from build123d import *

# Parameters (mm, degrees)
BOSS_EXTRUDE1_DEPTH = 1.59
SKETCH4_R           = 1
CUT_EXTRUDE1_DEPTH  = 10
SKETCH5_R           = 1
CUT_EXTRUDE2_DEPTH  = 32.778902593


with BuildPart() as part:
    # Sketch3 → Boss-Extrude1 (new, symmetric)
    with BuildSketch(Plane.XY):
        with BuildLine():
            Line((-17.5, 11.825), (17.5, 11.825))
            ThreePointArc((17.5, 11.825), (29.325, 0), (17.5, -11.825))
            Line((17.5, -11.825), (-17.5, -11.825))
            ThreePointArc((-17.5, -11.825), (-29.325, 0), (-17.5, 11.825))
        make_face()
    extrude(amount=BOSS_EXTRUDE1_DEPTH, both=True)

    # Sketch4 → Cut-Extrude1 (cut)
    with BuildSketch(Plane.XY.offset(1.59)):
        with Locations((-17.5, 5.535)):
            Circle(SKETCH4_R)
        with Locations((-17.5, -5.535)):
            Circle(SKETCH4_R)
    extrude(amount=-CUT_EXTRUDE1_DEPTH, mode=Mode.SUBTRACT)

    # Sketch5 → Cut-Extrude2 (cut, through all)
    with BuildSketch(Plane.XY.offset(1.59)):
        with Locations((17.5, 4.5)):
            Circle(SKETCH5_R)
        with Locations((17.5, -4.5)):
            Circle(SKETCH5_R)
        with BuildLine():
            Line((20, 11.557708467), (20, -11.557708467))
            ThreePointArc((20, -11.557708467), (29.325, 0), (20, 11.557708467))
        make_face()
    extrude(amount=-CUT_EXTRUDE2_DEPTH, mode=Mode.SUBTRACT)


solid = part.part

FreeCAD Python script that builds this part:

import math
import FreeCAD as App
import Part
import Sketcher
Q = App.Units.Quantity

doc = App.newDocument("Part")
body = doc.addObject("PartDesign::Body", "Body")

sketch1 = doc.addObject("Sketcher::SketchObject", "Sketch")
body.addObject(sketch1)
sketch1.AttachmentSupport = (doc.XY_Plane, [""])
sketch1.MapMode = "FlatFace"
sketch1.addGeometry([
    Part.LineSegment(App.Vector(17.5, 11.825, 0), App.Vector(-17.5, 11.825, 0)),
    Part.ArcOfCircle(Part.Circle(App.Vector(-17.5, 0, 0), App.Vector(0, 0, 1), 11.825), math.radians(90), math.radians(270)),
    Part.LineSegment(App.Vector(-17.5, -11.825, 0), App.Vector(17.5, -11.825, 0)),
    Part.ArcOfCircle(Part.Circle(App.Vector(17.5, 0, 0), App.Vector(0, 0, 1), 11.825), math.radians(-90), math.radians(90)),
], False)
sketch1.addConstraint([
    Sketcher.Constraint("Tangent", 0, 2, 1, 1),
    Sketcher.Constraint("Tangent", 1, 2, 2, 1),
    Sketcher.Constraint("Tangent", 2, 2, 3, 1),
    Sketcher.Constraint("Tangent", 3, 2, 0, 1),
    Sketcher.Constraint("Horizontal", 0),
    Sketcher.Constraint("Horizontal", 2),
    Sketcher.Constraint("Symmetric", 1, 3, 3, 3, -1, 1),
    Sketcher.Constraint("DistanceX", 0, 2, 0, 1, Q("35 mm")),
    Sketcher.Constraint("Radius", 1, Q("11.825 mm")),
])
pad1 = doc.addObject("PartDesign::Pad", "Pad")
body.addObject(pad1)
pad1.Profile = sketch1
pad1.Length = 3.18
pad1.Midplane = True

sketch2 = doc.addObject("Sketcher::SketchObject", "Sketch001")
body.addObject(sketch2)
sketch2.AttachmentSupport = (doc.XY_Plane, [""])
sketch2.MapMode = "FlatFace"
sketch2.AttachmentOffset = App.Placement(App.Vector(0, 0, 1.59), App.Rotation())
sketch2.addGeometry([
    Part.Circle(App.Vector(-17.5, 5.535, 0), App.Vector(0, 0, 1), 1),
    Part.Circle(App.Vector(-17.5, -5.535, 0), App.Vector(0, 0, 1), 1),
], False)
sketch2.addConstraint([
    Sketcher.Constraint("Equal", 0, 1),
    Sketcher.Constraint("Symmetric", 0, 3, 1, 3, -1),
    Sketcher.Constraint("Diameter", 0, Q("2 mm")),
    Sketcher.Constraint("DistanceX", 0, 3, -1, 1, Q("17.5 mm")),
    Sketcher.Constraint("DistanceY", 1, 3, 0, 3, Q("11.07 mm")),
])
pocket1 = doc.addObject("PartDesign::Pocket", "Pocket")
body.addObject(pocket1)
pocket1.Profile = sketch2
pocket1.Length = 10

sketch3 = doc.addObject("Sketcher::SketchObject", "Sketch002")
body.addObject(sketch3)
sketch3.AttachmentSupport = (doc.XY_Plane, [""])
sketch3.MapMode = "FlatFace"
sketch3.AttachmentOffset = App.Placement(App.Vector(0, 0, 1.59), App.Rotation())
sketch3.addGeometry([
    Part.Circle(App.Vector(17.5, 4.5, 0), App.Vector(0, 0, 1), 1),
    Part.Circle(App.Vector(17.5, -4.5, 0), App.Vector(0, 0, 1), 1),
    Part.LineSegment(App.Vector(20, 11.557708, 0), App.Vector(20, -11.557708, 0)),
    Part.ArcOfCircle(Part.Circle(App.Vector(17.5, 0, 0), App.Vector(0, 0, 1), 11.825), math.radians(-77.794625), math.radians(77.794625)),
], False)
sketch3.addConstraint([
    Sketcher.Constraint("Coincident", 2, 1, 3, 2),
    Sketcher.Constraint("Coincident", 3, 1, 2, 2),
    Sketcher.Constraint("Vertical", 2),
    Sketcher.Constraint("Equal", 0, 1),
    Sketcher.Constraint("Symmetric", 0, 3, 1, 3, -1),
    Sketcher.Constraint("PointOnObject", 3, 3, -1),
    Sketcher.Constraint("Vertical", 1, 3, 3, 3),
    Sketcher.Constraint("Diameter", 0, Q("2 mm")),
    Sketcher.Constraint("DistanceX", -1, 1, 2, 1, Q("20 mm")),
    Sketcher.Constraint("Radius", 3, Q("11.825 mm")),
    Sketcher.Constraint("DistanceY", 1, 3, 0, 3, Q("9 mm")),
    Sketcher.Constraint("DistanceX", -1, 1, 0, 3, Q("17.5 mm")),
])
pocket2 = doc.addObject("PartDesign::Pocket", "Pocket001")
body.addObject(pocket2)
pocket2.Profile = sketch3
pocket2.Type = "ThroughAll"

doc.recompute()
